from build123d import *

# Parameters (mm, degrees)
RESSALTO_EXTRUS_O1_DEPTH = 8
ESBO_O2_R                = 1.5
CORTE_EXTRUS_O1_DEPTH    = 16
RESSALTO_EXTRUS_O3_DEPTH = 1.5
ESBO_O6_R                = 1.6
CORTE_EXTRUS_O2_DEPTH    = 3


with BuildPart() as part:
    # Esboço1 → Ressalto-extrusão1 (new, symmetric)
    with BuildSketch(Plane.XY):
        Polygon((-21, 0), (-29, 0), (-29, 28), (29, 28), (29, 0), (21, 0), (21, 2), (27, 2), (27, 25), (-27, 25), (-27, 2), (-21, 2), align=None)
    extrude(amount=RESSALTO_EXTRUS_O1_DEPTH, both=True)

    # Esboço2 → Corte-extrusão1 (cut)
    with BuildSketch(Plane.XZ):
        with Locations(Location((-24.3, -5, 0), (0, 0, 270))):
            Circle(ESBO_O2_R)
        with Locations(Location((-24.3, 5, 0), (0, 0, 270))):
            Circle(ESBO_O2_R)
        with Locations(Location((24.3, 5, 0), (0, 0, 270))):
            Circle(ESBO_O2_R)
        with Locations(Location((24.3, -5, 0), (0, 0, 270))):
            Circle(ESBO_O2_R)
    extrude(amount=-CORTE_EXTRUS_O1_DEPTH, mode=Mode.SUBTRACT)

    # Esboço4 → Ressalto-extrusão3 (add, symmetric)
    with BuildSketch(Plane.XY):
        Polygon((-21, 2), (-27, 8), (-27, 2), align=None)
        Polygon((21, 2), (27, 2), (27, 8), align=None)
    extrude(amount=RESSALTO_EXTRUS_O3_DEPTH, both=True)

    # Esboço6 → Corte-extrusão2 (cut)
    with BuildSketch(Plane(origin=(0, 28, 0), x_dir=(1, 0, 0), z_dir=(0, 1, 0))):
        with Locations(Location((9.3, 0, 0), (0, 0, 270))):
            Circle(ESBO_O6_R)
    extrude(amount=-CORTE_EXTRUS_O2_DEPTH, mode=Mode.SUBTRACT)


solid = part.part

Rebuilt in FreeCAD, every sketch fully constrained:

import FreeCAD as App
import Part
import Sketcher


def add_polygon(sketch, points):
    """Adds a closed chain of lines whose ends are joined by coincident constraints."""
    first, n = sketch.GeometryCount, len(points)
    for a, b in zip(points, points[1:] + points[:1]):
        sketch.addGeometry(Part.LineSegment(App.Vector(*a, 0), App.Vector(*b, 0)), False)
    for i in range(n):
        sketch.addConstraint(Sketcher.Constraint("Coincident", first + i, 2, first + (i + 1) % n, 1))

doc = App.newDocument("Part")
body = doc.addObject("PartDesign::Body", "Body")

# Sketch on XY plane
sketch1 = doc.addObject("Sketcher::SketchObject", "Sketch")
body.addObject(sketch1)
sketch1.AttachmentSupport = (doc.XY_Plane, [""])
sketch1.MapMode = "FlatFace"
add_polygon(sketch1, [(-29, 0), (-21, 0), (-21, 2), (-27, 2), (-27, 25), (27, 25), (27, 2), (21, 2), (21, 0), (29, 0), (29, 28), (-29, 28)])  # lines 0-11
sketch1.addConstraint([
    Sketcher.Constraint("Horizontal", 0),
    Sketcher.Constraint("Vertical", 1),
    Sketcher.Constraint("Horizontal", 2),
    Sketcher.Constraint("Vertical", 3),
    Sketcher.Constraint("Horizontal", 4),
    Sketcher.Constraint("Vertical", 5),
    Sketcher.Constraint("Horizontal", 6),
    Sketcher.Constraint("Vertical", 7),
    Sketcher.Constraint("Horizontal", 8),
    Sketcher.Constraint("Vertical", 9),
    Sketcher.Constraint("Horizontal", 10),
    Sketcher.Constraint("Vertical", 11),
    Sketcher.Constraint("Symmetric", 0, 2, 7, 2, -1, 1),
    Sketcher.Constraint("Symmetric", 2, 2, 5, 2, -2),
    Sketcher.Constraint("Symmetric", 8, 2, 11, 2, -2),
    Sketcher.Constraint("DistanceX", 0, 1, 0, 2, 8.0),
    Sketcher.Constraint("DistanceX", 2, 2, 2, 1, 6.0),
    Sketcher.Constraint("DistanceX", 4, 1, 4, 2, 54.0),
    Sketcher.Constraint("DistanceY", 1, 1, 1, 2, 2.0),
    Sketcher.Constraint("DistanceY", 3, 1, 3, 2, 23.0),
    Sketcher.Constraint("DistanceY", 9, 1, 9, 2, 28.0),
])
pad1 = doc.addObject("PartDesign::Pad", "Pad")
body.addObject(pad1)
pad1.Profile = sketch1
pad1.Length = 16
pad1.Midplane = True

# Sketch on XZ plane
sketch2 = doc.addObject("Sketcher::SketchObject", "Sketch001")
body.addObject(sketch2)
sketch2.AttachmentSupport = (doc.XZ_Plane, [""])
sketch2.MapMode = "FlatFace"
sketch2.addGeometry([
    Part.Circle(App.Vector(-24.3, -5, 0), App.Vector(0, 0, 1), 1.5),
    Part.Circle(App.Vector(-24.3, 5, 0), App.Vector(0, 0, 1), 1.5),
    Part.Circle(App.Vector(24.3, 5, 0), App.Vector(0, 0, 1), 1.5),
    Part.Circle(App.Vector(24.3, -5, 0), App.Vector(0, 0, 1), 1.5),
], False)
sketch2.addConstraint([
    Sketcher.Constraint("Equal", 0, 1),
    Sketcher.Constraint("Equal", 1, 2),
    Sketcher.Constraint("Equal", 2, 3),
    Sketcher.Constraint("Symmetric", 0, 3, 2, 3, -1, 1),
    Sketcher.Constraint("Symmetric", 1, 3, 3, 3, -1, 1),
    Sketcher.Constraint("Symmetric", 1, 3, 2, 3, -2),
    Sketcher.Constraint("Diameter", 0, 3.0),
    Sketcher.Constraint("DistanceY", 0, 3, -1, 1, 5.0),
    Sketcher.Constraint("DistanceX", 0, 3, -1, 1, 24.3),
])
pocket1 = doc.addObject("PartDesign::Pocket", "Pocket")
body.addObject(pocket1)
pocket1.Profile = sketch2
pocket1.Length = 16

# Sketch on XY plane
sketch3 = doc.addObject("Sketcher::SketchObject", "Sketch002")
body.addObject(sketch3)
sketch3.AttachmentSupport = (doc.XY_Plane, [""])
sketch3.MapMode = "FlatFace"
add_polygon(sketch3, [(-21, 2), (-27, 8), (-27, 2)])  # lines 0-2
add_polygon(sketch3, [(21, 2), (27, 2), (27, 8)])  # lines 3-5
sketch3.addConstraint([
    Sketcher.Constraint("Vertical", 1),
    Sketcher.Constraint("Horizontal", 2),
    Sketcher.Constraint("Horizontal", 3),
    Sketcher.Constraint("Vertical", 4),
    Sketcher.Constraint("Symmetric", 1, 2, 3, 2, -2),
    Sketcher.Constraint("Perpendicular", 0, 5),
    Sketcher.Constraint("Horizontal", 0, 2, 4, 2),
    Sketcher.Constraint("Equal", 2, 3),
    Sketcher.Constraint("DistanceX", 2, 1, 2, 2, 6.0),
    Sketcher.Constraint("DistanceX", 0, 2, -1, 1, 27.0),
    Sketcher.Constraint("DistanceY", -1, 1, 0, 2, 8.0),
])
pad2 = doc.addObject("PartDesign::Pad", "Pad001")
body.addObject(pad2)
pad2.Profile = sketch3
pad2.Length = 3
pad2.Midplane = True

# Sketch on XZ plane
sketch4 = doc.addObject("Sketcher::SketchObject", "Sketch003")
body.addObject(sketch4)
sketch4.AttachmentSupport = (doc.XZ_Plane, [""])
sketch4.MapMode = "FlatFace"
sketch4.AttachmentOffset = App.Placement(App.Vector(0, 0, -28), App.Rotation())
sketch4.addGeometry(Part.Circle(App.Vector(9.3, 0, 0), App.Vector(0, 0, 1), 1.6), False)
sketch4.addConstraint([
    Sketcher.Constraint("PointOnObject", 0, 3, -1),
    Sketcher.Constraint("Diameter", 0, 3.2),
    Sketcher.Constraint("DistanceX", -1, 1, 0, 3, 9.3),
])
pocket2 = doc.addObject("PartDesign::Pocket", "Pocket001")
body.addObject(pocket2)
pocket2.Profile = sketch4
pocket2.Length = 3
pocket2.Reversed = True

doc.recompute()
